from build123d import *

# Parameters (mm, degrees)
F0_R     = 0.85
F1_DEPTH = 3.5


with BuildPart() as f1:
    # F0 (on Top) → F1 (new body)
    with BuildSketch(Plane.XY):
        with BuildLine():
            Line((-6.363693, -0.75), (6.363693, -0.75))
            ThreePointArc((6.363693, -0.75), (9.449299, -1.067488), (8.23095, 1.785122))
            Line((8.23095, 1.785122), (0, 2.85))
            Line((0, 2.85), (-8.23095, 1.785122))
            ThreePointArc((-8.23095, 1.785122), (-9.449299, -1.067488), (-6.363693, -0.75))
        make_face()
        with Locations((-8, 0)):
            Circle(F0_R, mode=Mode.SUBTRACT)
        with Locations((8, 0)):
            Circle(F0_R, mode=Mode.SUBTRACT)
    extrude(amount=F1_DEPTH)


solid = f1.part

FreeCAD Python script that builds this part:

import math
import FreeCAD as App
import Part
import Sketcher
from FreeCAD import Vector
Q = App.Units.Quantity

doc = App.newDocument("Part")
params = doc.addObject("Spreadsheet::Sheet", "Params")
for row, (alias, value) in enumerate([
    ("sketch1_diameter", "1.7 mm"),
    ("sketch1_radius", "1.8 mm"),
    ("pad1_length", "3.5 mm"),
], start=1):
    params.set(f"A{row}", alias)
    params.set(f"B{row}", "=" + value)
    params.setAlias(f"B{row}", alias)

body = doc.addObject("PartDesign::Body", "Body")

# Sketch on XY plane
sketch1 = body.newObject("Sketcher::SketchObject", "Sketch")
sketch1.AttachmentSupport = (doc.getObject("XY_Plane"), [""])
sketch1.MapMode = "FlatFace"
sketch1.addGeometry([
    Part.LineSegment(Vector(-6.4, -0.8, 0), Vector(6.4, -0.8, 0)),  # 0
    Part.ArcOfCircle(Part.Circle(Vector(8, 0, 0), Vector(0, 0, 1), 1.8), math.radians(-155), math.radians(83)),  # 1
    Part.LineSegment(Vector(8.2, 1.8, 0), Vector(0, 2.9, 0)),  # 2
    Part.LineSegment(Vector(0, 2.9, 0), Vector(-8.2, 1.8, 0)),  # 3
    Part.ArcOfCircle(Part.Circle(Vector(-8, 0, 0), Vector(0, 0, 1), 1.8), math.radians(97), math.radians(335)),  # 4
    Part.Circle(Vector(-8, 0, 0), Vector(0, 0, 1), 0.8),  # 5
    Part.Circle(Vector(8, 0, 0), Vector(0, 0, 1), 0.8),  # 6
], False)
sketch1.addConstraint([
    Sketcher.Constraint("Coincident", 0, 2, 1, 1),
    Sketcher.Constraint("Tangent", 1, 2, 2, 1),
    Sketcher.Constraint("Coincident", 2, 2, 3, 1),
    Sketcher.Constraint("Tangent", 3, 2, 4, 1),
    Sketcher.Constraint("Coincident", 4, 2, 0, 1),
    Sketcher.Constraint("Horizontal", 0),
    Sketcher.Constraint("Coincident", 5, 3, 4, 3),
    Sketcher.Constraint("Coincident", 6, 3, 1, 3),
    Sketcher.Constraint("Equal", 1, 4),
    Sketcher.Constraint("Equal", 5, 6),
    Sketcher.Constraint("Symmetric", 1, 3, 4, 3, -1, 1),
    Sketcher.Constraint("Symmetric", 1, 2, 3, 2, -2),
    Sketcher.Constraint("Diameter", 5, Q("1.7 mm")),
    Sketcher.Constraint("Radius", 1, Q("1.8 mm")),
    Sketcher.Constraint("DistanceX", -1, 1, 1, 3, Q("8 mm")),
    Sketcher.Constraint("DistanceY", 0, 2, 2, 2, Q("3.6 mm")),
    Sketcher.Constraint("DistanceY", 0, 2, -1, 1, Q("0.75 mm")),
])
sketch1.setExpression("Constraints[12]", "Params.sketch1_diameter")
sketch1.setExpression("Constraints[13]", "Params.sketch1_radius")
pad1 = body.newObject("PartDesign::Pad", "Pad")
pad1.Profile = sketch1
pad1.setExpression("Length", "Params.pad1_length")

doc.recompute()
